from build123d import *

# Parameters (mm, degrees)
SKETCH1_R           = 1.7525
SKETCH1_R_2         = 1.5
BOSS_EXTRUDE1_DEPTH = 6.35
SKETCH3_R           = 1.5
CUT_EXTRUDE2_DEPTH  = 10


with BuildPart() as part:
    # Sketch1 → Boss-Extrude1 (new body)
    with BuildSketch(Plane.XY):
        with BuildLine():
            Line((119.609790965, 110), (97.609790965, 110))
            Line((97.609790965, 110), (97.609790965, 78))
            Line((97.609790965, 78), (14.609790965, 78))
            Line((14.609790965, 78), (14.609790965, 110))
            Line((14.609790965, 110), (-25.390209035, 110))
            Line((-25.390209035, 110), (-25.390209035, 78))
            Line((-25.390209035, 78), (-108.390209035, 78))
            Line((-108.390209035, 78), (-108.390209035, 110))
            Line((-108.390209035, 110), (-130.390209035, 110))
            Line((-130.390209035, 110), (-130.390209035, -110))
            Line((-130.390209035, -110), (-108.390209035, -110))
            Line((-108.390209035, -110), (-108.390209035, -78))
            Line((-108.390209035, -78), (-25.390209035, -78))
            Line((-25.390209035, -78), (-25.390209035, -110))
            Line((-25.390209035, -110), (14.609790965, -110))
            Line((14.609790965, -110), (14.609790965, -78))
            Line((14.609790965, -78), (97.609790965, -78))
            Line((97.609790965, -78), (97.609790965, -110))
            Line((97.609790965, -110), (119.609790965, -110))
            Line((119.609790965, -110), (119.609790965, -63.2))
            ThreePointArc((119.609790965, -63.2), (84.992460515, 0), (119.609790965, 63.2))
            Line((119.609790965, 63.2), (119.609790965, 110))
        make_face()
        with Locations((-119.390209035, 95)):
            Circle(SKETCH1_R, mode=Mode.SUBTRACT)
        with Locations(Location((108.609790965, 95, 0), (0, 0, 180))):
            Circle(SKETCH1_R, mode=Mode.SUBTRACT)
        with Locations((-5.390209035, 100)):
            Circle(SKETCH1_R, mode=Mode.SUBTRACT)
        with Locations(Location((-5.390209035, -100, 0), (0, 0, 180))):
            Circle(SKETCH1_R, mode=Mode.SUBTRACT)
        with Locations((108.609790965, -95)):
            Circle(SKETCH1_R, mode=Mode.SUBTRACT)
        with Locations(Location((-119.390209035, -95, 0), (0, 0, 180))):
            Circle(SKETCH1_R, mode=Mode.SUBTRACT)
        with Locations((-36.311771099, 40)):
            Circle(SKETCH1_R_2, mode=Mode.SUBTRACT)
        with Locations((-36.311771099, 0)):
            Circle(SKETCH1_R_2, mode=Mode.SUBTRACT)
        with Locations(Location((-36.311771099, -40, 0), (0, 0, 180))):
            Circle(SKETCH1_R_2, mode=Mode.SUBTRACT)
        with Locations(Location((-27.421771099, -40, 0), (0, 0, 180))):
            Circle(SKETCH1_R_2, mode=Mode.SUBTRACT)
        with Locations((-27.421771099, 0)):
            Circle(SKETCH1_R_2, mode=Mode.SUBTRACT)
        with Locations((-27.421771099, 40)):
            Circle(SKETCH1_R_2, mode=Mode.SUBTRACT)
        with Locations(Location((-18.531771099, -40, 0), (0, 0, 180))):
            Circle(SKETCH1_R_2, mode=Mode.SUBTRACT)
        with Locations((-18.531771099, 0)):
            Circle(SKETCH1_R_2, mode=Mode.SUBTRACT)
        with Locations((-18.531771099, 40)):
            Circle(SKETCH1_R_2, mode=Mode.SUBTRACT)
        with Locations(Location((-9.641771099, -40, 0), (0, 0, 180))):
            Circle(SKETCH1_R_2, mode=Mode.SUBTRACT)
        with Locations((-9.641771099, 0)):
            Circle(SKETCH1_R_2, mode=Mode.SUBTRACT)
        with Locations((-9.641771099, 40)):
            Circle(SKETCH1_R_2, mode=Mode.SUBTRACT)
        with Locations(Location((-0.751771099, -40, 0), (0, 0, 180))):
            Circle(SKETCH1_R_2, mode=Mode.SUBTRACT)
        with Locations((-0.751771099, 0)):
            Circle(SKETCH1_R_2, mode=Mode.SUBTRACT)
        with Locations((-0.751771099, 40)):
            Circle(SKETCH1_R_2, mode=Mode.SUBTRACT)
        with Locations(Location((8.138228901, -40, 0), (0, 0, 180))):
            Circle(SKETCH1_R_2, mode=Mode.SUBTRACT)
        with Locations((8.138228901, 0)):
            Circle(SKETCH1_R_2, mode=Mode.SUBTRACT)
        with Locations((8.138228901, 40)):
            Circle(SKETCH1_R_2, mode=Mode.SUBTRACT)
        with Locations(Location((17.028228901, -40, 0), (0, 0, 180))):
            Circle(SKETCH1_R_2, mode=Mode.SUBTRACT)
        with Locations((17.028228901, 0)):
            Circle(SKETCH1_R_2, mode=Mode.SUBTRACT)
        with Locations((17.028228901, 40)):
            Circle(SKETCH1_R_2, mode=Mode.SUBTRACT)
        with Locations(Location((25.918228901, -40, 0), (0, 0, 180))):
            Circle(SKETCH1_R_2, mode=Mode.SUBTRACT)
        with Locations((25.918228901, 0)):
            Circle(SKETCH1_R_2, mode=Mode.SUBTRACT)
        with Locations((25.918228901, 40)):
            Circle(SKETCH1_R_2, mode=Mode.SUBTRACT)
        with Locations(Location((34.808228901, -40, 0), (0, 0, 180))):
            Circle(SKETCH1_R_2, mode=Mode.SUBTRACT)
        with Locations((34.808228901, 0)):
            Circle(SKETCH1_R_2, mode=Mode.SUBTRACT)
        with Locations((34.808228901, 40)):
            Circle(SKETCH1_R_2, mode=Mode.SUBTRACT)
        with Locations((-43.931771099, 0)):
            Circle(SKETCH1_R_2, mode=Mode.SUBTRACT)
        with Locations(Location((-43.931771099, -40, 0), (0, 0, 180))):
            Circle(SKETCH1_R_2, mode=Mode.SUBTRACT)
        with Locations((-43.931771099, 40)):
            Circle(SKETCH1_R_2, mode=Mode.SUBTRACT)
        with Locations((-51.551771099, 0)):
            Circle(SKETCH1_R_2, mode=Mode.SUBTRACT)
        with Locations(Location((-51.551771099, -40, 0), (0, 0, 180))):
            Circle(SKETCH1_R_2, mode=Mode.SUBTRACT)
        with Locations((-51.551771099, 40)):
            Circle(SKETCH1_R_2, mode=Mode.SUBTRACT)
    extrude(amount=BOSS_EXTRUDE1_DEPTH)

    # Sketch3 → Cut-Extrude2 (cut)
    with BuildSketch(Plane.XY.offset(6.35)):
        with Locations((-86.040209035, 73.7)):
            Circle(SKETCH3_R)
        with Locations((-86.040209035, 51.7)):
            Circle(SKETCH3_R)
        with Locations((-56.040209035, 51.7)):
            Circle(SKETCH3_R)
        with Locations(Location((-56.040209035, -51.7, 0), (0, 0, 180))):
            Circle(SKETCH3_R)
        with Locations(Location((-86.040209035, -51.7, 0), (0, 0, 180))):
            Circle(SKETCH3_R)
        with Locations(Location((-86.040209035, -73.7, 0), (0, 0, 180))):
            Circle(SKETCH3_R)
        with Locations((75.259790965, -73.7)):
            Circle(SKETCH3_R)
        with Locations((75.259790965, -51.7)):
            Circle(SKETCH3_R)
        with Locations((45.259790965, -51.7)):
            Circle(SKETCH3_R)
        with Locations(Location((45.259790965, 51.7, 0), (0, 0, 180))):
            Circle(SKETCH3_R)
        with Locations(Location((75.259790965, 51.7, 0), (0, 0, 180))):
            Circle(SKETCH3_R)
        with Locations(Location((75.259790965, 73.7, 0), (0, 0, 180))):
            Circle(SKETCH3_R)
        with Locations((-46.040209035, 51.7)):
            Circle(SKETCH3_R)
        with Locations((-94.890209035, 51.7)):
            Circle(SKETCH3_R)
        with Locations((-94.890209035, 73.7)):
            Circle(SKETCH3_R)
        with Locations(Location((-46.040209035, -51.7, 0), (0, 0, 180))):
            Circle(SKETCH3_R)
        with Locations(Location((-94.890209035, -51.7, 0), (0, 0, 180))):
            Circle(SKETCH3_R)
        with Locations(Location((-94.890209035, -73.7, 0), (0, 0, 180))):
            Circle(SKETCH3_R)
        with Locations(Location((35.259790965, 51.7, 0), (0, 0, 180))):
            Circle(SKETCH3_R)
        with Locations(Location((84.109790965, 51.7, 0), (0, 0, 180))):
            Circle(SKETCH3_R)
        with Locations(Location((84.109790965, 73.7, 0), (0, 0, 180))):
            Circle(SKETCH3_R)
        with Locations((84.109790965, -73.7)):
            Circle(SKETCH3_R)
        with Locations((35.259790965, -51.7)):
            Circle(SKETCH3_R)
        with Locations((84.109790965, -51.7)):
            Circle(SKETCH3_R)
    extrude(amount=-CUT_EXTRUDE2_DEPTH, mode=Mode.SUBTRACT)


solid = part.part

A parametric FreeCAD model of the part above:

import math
import FreeCAD as App
import Part
import Sketcher
from FreeCAD import Vector

doc = App.newDocument("Part")
body = doc.addObject("PartDesign::Body", "Body")

# Sketch on XY plane
sketch1 = body.newObject("Sketcher::SketchObject", "Sketch")
sketch1.AttachmentSupport = (doc.getObject("XY_Plane"), [""])
sketch1.MapMode = "FlatFace"
sketch1.addGeometry([
    Part.LineSegment(Vector(119.6, 110, 0), Vector(97.6, 110, 0)),  # 0
    Part.LineSegment(Vector(97.6, 110, 0), Vector(97.6, 78, 0)),  # 1
    Part.LineSegment(Vector(97.6, 78, 0), Vector(14.6, 78, 0)),  # 2
    Part.LineSegment(Vector(14.6, 78, 0), Vector(14.6, 110, 0)),  # 3
    Part.LineSegment(Vector(14.6, 110, 0), Vector(-25.4, 110, 0)),  # 4
    Part.LineSegment(Vector(-25.4, 110, 0), Vector(-25.4, 78, 0)),  # 5
    Part.LineSegment(Vector(-25.4, 78, 0), Vector(-108.4, 78, 0)),  # 6
    Part.LineSegment(Vector(-108.4, 78, 0), Vector(-108.4, 110, 0)),  # 7
    Part.LineSegment(Vector(-108.4, 110, 0), Vector(-130.4, 110, 0)),  # 8
    Part.LineSegment(Vector(-130.4, 110, 0), Vector(-130.4, -110, 0)),  # 9
    Part.LineSegment(Vector(-130.4, -110, 0), Vector(-108.4, -110, 0)),  # 10
    Part.LineSegment(Vector(-108.4, -110, 0), Vector(-108.4, -78, 0)),  # 11
    Part.LineSegment(Vector(-108.4, -78, 0), Vector(-25.4, -78, 0)),  # 12
    Part.LineSegment(Vector(-25.4, -78, 0), Vector(-25.4, -110, 0)),  # 13
    Part.LineSegment(Vector(-25.4, -110, 0), Vector(14.6, -110, 0)),  # 14
    Part.LineSegment(Vector(14.6, -110, 0), Vector(14.6, -78, 0)),  # 15
    Part.LineSegment(Vector(14.6, -78, 0), Vector(97.6, -78, 0)),  # 16
    Part.LineSegment(Vector(97.6, -78, 0), Vector(97.6, -110, 0)),  # 17
    Part.LineSegment(Vector(97.6, -110, 0), Vector(119.6, -110, 0)),  # 18
    Part.LineSegment(Vector(119.6, -110, 0), Vector(119.6, -63.2, 0)),  # 19
    Part.ArcOfCircle(Part.Circle(Vector(160, 0, 0), Vector(0, 0, 1), 75), math.radians(123), math.radians(237)),  # 20
    Part.LineSegment(Vector(119.6, 63.2, 0), Vector(119.6, 110, 0)),  # 21
    Part.Circle(Vector(-119.4, -95, 0), Vector(0, 0, 1), 1.8),  # 22
    Part.Circle(Vector(-51.6, -40, 0), Vector(0, 0, 1), 1.5),  # 23
    Part.Circle(Vector(-43.9, -40, 0), Vector(0, 0, 1), 1.5),  # 24
    Part.Circle(Vector(-36.3, -40, 0), Vector(0, 0, 1), 1.5),  # 25
    Part.Circle(Vector(-27.4, -40, 0), Vector(0, 0, 1), 1.5),  # 26
    Part.Circle(Vector(-18.5, -40, 0), Vector(0, 0, 1), 1.5),  # 27
    Part.Circle(Vector(-9.6, -40, 0), Vector(0, 0, 1), 1.5),  # 28
    Part.Circle(Vector(-5.4, -100, 0), Vector(0, 0, 1), 1.8),  # 29
    Part.Circle(Vector(108.6, -95, 0), Vector(0, 0, 1), 1.8),  # 30
    Part.Circle(Vector(-0.8, -40, 0), Vector(0, 0, 1), 1.5),  # 31
    Part.Circle(Vector(8.1, -40, 0), Vector(0, 0, 1), 1.5),  # 32
    Part.Circle(Vector(17, -40, 0), Vector(0, 0, 1), 1.5),  # 33
    Part.Circle(Vector(25.9, -40, 0), Vector(0, 0, 1), 1.5),  # 34
    Part.Circle(Vector(34.8, -40, 0), Vector(0, 0, 1), 1.5),  # 35
    Part.Circle(Vector(-51.6, 0, 0), Vector(0, 0, 1), 1.5),  # 36
    Part.Circle(Vector(-43.9, 0, 0), Vector(0, 0, 1), 1.5),  # 37
    Part.Circle(Vector(-36.3, 0, 0), Vector(0, 0, 1), 1.5),  # 38
    Part.Circle(Vector(-27.4, 0, 0), Vector(0, 0, 1), 1.5),  # 39
    Part.Circle(Vector(-18.5, 0, 0), Vector(0, 0, 1), 1.5),  # 40
    Part.Circle(Vector(-9.6, 0, 0), Vector(0, 0, 1), 1.5),  # 41
    Part.Circle(Vector(-51.6, 40, 0), Vector(0, 0, 1), 1.5),  # 42
    Part.Circle(Vector(-43.9, 40, 0), Vector(0, 0, 1), 1.5),  # 43
    Part.Circle(Vector(-36.3, 40, 0), Vector(0, 0, 1), 1.5),  # 44
    Part.Circle(Vector(-27.4, 40, 0), Vector(0, 0, 1), 1.5),  # 45
    Part.Circle(Vector(-18.5, 40, 0), Vector(0, 0, 1), 1.5),  # 46
    Part.Circle(Vector(-9.6, 40, 0), Vector(0, 0, 1), 1.5),  # 47
    Part.Circle(Vector(-119.4, 95, 0), Vector(0, 0, 1), 1.8),  # 48
    Part.Circle(Vector(-0.8, 0, 0), Vector(0, 0, 1), 1.5),  # 49
    Part.Circle(Vector(8.1, 0, 0), Vector(0, 0, 1), 1.5),  # 50
    Part.Circle(Vector(17, 0, 0), Vector(0, 0, 1), 1.5),  # 51
    Part.Circle(Vector(25.9, 0, 0), Vector(0, 0, 1), 1.5),  # 52
    Part.Circle(Vector(34.8, 0, 0), Vector(0, 0, 1), 1.5),  # 53
    Part.Circle(Vector(-0.8, 40, 0), Vector(0, 0, 1), 1.5),  # 54
    Part.Circle(Vector(8.1, 40, 0), Vector(0, 0, 1), 1.5),  # 55
    Part.Circle(Vector(17, 40, 0), Vector(0, 0, 1), 1.5),  # 56
    Part.Circle(Vector(25.9, 40, 0), Vector(0, 0, 1), 1.5),  # 57
    Part.Circle(Vector(34.8, 40, 0), Vector(0, 0, 1), 1.5),  # 58
    Part.Circle(Vector(-5.4, 100, 0), Vector(0, 0, 1), 1.8),  # 59
    Part.Circle(Vector(108.6, 95, 0), Vector(0, 0, 1), 1.8),  # 60
], False)
sketch1.addConstraint([
    Sketcher.Constraint("Coincident", 0, 2, 1, 1),
    Sketcher.Constraint("Coincident", 1, 2, 2, 1),
    Sketcher.Constraint("Coincident", 2, 2, 3, 1),
    Sketcher.Constraint("Coincident", 3, 2, 4, 1),
    Sketcher.Constraint("Coincident", 4, 2, 5, 1),
    Sketcher.Constraint("Coincident", 5, 2, 6, 1),
    Sketcher.Constraint("Coincident", 6, 2, 7, 1),
    Sketcher.Constraint("Coincident", 7, 2, 8, 1),
    Sketcher.Constraint("Coincident", 8, 2, 9, 1),
    Sketcher.Constraint("Coincident", 9, 2, 10, 1),
    Sketcher.Constraint("Coincident", 10, 2, 11, 1),
    Sketcher.Constraint("Coincident", 11, 2, 12, 1),
    Sketcher.Constraint("Coincident", 12, 2, 13, 1),
    Sketcher.Constraint("Coincident", 13, 2, 14, 1),
    Sketcher.Constraint("Coincident", 14, 2, 15, 1),
    Sketcher.Constraint("Coincident", 15, 2, 16, 1),
    Sketcher.Constraint("Coincident", 16, 2, 17, 1),
    Sketcher.Constraint("Coincident", 17, 2, 18, 1),
    Sketcher.Constraint("Coincident", 18, 2, 19, 1),
    Sketcher.Constraint("Coincident", 19, 2, 20, 2),
    Sketcher.Constraint("Coincident", 20, 1, 21, 1),
    Sketcher.Constraint("Coincident", 21, 2, 0, 1),
    Sketcher.Constraint("Horizontal", 0),
    Sketcher.Constraint("Vertical", 1),
    Sketcher.Constraint("Horizontal", 2),
    Sketcher.Constraint("Vertical", 3),
    Sketcher.Constraint("Horizontal", 4),
    Sketcher.Constraint("Vertical", 5),
    Sketcher.Constraint("Horizontal", 6),
    Sketcher.Constraint("Vertical", 7),
    Sketcher.Constraint("Horizontal", 8),
    Sketcher.Constraint("Vertical", 9),
    Sketcher.Constraint("Horizontal", 10),
    Sketcher.Constraint("Vertical", 11),
    Sketcher.Constraint("Horizontal", 12),
    Sketcher.Constraint("Vertical", 13),
    Sketcher.Constraint("Horizontal", 14),
    Sketcher.Constraint("Vertical", 15),
    Sketcher.Constraint("Horizontal", 16),
    Sketcher.Constraint("Vertical", 17),
    Sketcher.Constraint("Horizontal", 18),
    Sketcher.Constraint("Vertical", 19),
    Sketcher.Constraint("Vertical", 21),
    Sketcher.Constraint("Equal", 23, 24),
    Sketcher.Constraint("Equal", 24, 25),
    Sketcher.Constraint("Equal", 25, 26),
    Sketcher.Constraint("Equal", 26, 27),
    Sketcher.Constraint("Equal", 27, 28),
    Sketcher.Constraint("Equal", 22, 29),
    Sketcher.Constraint("Equal", 29, 30),
    Sketcher.Constraint("Equal", 28, 31),
    Sketcher.Constraint("Equal", 31, 32),
    Sketcher.Constraint("Equal", 32, 33),
    Sketcher.Constraint("Equal", 33, 34),
    Sketcher.Constraint("Equal", 34, 35),
    Sketcher.Constraint("Equal", 35, 36),
    Sketcher.Constraint("Equal", 36, 37),
    Sketcher.Constraint("Equal", 37, 38),
    Sketcher.Constraint("Equal", 38, 39),
    Sketcher.Constraint("Equal", 39, 40),
    Sketcher.Constraint("Equal", 40, 41),
    Sketcher.Constraint("Equal", 41, 42),
    Sketcher.Constraint("Equal", 42, 43),
    Sketcher.Constraint("Equal", 43, 44),
    Sketcher.Constraint("Equal", 44, 45),
    Sketcher.Constraint("Equal", 45, 46),
    Sketcher.Constraint("Equal", 46, 47),
    Sketcher.Constraint("Equal", 30, 48),
    Sketcher.Constraint("Equal", 47, 49),
    Sketcher.Constraint("Equal", 49, 50),
    Sketcher.Constraint("Equal", 50, 51),
    Sketcher.Constraint("Equal", 51, 52),
    Sketcher.Constraint("Equal", 52, 53),
    Sketcher.Constraint("Equal", 53, 54),
    Sketcher.Constraint("Equal", 54, 55),
    Sketcher.Constraint("Equal", 55, 56),
    Sketcher.Constraint("Equal", 56, 57),
    Sketcher.Constraint("Equal", 57, 58),
    Sketcher.Constraint("Equal", 48, 59),
    Sketcher.Constraint("Equal", 59, 60),
    Sketcher.Constraint("Symmetric", 23, 3, 42, 3, -1),
    Sketcher.Constraint("Symmetric", 24, 3, 43, 3, -1),
    Sketcher.Constraint("Symmetric", 25, 3, 44, 3, -1),
    Sketcher.Constraint("Symmetric", 26, 3, 45, 3, -1),
    Sketcher.Constraint("Symmetric", 27, 3, 46, 3, -1),
    Sketcher.Constraint("Symmetric", 28, 3, 47, 3, -1),
    Sketcher.Constraint("Symmetric", 22, 3, 48, 3, -1),
    Sketcher.Constraint("Symmetric", 31, 3, 54, 3, -1),
    Sketcher.Constraint("Symmetric", 32, 3, 55, 3, -1),
    Sketcher.Constraint("Symmetric", 33, 3, 56, 3, -1),
    Sketcher.Constraint("Symmetric", 34, 3, 57, 3, -1),
    Sketcher.Constraint("Symmetric", 35, 3, 58, 3, -1),
    Sketcher.Constraint("Symmetric", 29, 3, 59, 3, -1),
    Sketcher.Constraint("Symmetric", 30, 3, 60, 3, -1),
    Sketcher.Constraint("Symmetric", 7, 2, 10, 2, -1),
    Sketcher.Constraint("Symmetric", 5, 2, 12, 2, -1),
    Sketcher.Constraint("Symmetric", 3, 2, 14, 2, -1),
    Sketcher.Constraint("Symmetric", 1, 2, 16, 2, -1),
    Sketcher.Constraint("Symmetric", 19, 2, 20, 1, -1),
    Sketcher.Constraint("PointOnObject", 36, 3, -1),
    Sketcher.Constraint("PointOnObject", 37, 3, -1),
    Sketcher.Constraint("PointOnObject", 38, 3, -1),
    Sketcher.Constraint("PointOnObject", 39, 3, -1),
    Sketcher.Constraint("PointOnObject", 40, 3, -1),
    Sketcher.Constraint("PointOnObject", 41, 3, -1),
    Sketcher.Constraint("PointOnObject", 49, 3, -1),
    Sketcher.Constraint("PointOnObject", 50, 3, -1),
    Sketcher.Constraint("PointOnObject", 51, 3, -1),
    Sketcher.Constraint("PointOnObject", 52, 3, -1),
    Sketcher.Constraint("PointOnObject", 53, 3, -1),
    Sketcher.Constraint("Horizontal", 23, 3, 24, 3),
    Sketcher.Constraint("Horizontal", 24, 3, 25, 3),
    Sketcher.Constraint("Horizontal", 25, 3, 26, 3),
    Sketcher.Constraint("Horizontal", 26, 3, 27, 3),
    Sketcher.Constraint("Horizontal", 27, 3, 28, 3),
    Sketcher.Constraint("Horizontal", 22, 3, 30, 3),
    Sketcher.Constraint("Horizontal", 28, 3, 31, 3),
    Sketcher.Constraint("Horizontal", 31, 3, 32, 3),
    Sketcher.Constraint("Horizontal", 32, 3, 33, 3),
    Sketcher.Constraint("Horizontal", 33, 3, 34, 3),
    Sketcher.Constraint("Horizontal", 34, 3, 35, 3),
    Sketcher.Constraint("Horizontal", 0, 2, 3, 2),
    Sketcher.Constraint("Horizontal", 2, 2, 5, 2),
    Sketcher.Constraint("Horizontal", 4, 2, 7, 2),
    Sketcher.Constraint("Horizontal", 14, 2, 17, 2),
    Sketcher.Constraint("Vertical", 23, 3, 36, 3),
    Sketcher.Constraint("Vertical", 24, 3, 37, 3),
    Sketcher.Constraint("Vertical", 25, 3, 38, 3),
    Sketcher.Constraint("Vertical", 26, 3, 39, 3),
    Sketcher.Constraint("Vertical", 27, 3, 40, 3),
    Sketcher.Constraint("Vertical", 28, 3, 41, 3),
    Sketcher.Constraint("Vertical", 31, 3, 49, 3),
    Sketcher.Constraint("Vertical", 32, 3, 50, 3),
    Sketcher.Constraint("Vertical", 33, 3, 51, 3),
    Sketcher.Constraint("Vertical", 34, 3, 52, 3),
    Sketcher.Constraint("Vertical", 35, 3, 53, 3),
    Sketcher.Constraint("Equal", 2, 6),
    Sketcher.Constraint("Equal", 0, 8),
    Sketcher.Constraint("Diameter", 23, 3.0),
    Sketcher.Constraint("Radius", 20, 75.0),
    Sketcher.Constraint("DistanceX", 0, 2, 0, 1, 22.0),
    Sketcher.Constraint("DistanceX", 2, 2, 2, 1, 83.0),
    Sketcher.Constraint("DistanceX", 4, 2, 4, 1, 40.0),
    Sketcher.Constraint("DistanceY", 1, 2, 1, 1, 32.0),
    Sketcher.Constraint("DistanceY", 9, 2, 9, 1, 220.0),
    Sketcher.Constraint("Diameter", 22, 3.505),
    Sketcher.Constraint("DistanceY", 19, 1, 19, 2, 46.8),
    Sketcher.Constraint("DistanceY", 22, 3, -1, 1, 95.0),
    Sketcher.Constraint("DistanceY", 23, 3, -1, 1, 40.0),
    Sketcher.Constraint("DistanceY", 29, 3, -1, 1, 100.0),
    Sketcher.Constraint("DistanceX", -1, 1, 20, 3, 159.992461),
    Sketcher.Constraint("DistanceX", 22, 3, -1, 1, 119.390209),
    Sketcher.Constraint("DistanceX", 23, 3, -1, 1, 51.551771),
    Sketcher.Constraint("DistanceX", 24, 3, -1, 1, 43.931771),
    Sketcher.Constraint("DistanceX", 25, 3, -1, 1, 36.311771),
    Sketcher.Constraint("DistanceX", 26, 3, -1, 1, 27.421771),
    Sketcher.Constraint("DistanceX", 27, 3, -1, 1, 18.531771),
    Sketcher.Constraint("DistanceX", 28, 3, -1, 1, 9.641771),
    Sketcher.Constraint("DistanceX", 29, 3, -1, 1, 5.390209),
    Sketcher.Constraint("DistanceX", -1, 1, 30, 3, 108.609791),
    Sketcher.Constraint("DistanceX", 31, 3, -1, 1, 0.751771),
    Sketcher.Constraint("DistanceX", -1, 1, 32, 3, 8.138229),
    Sketcher.Constraint("DistanceX", -1, 1, 33, 3, 17.028229),
    Sketcher.Constraint("DistanceX", -1, 1, 34, 3, 25.918229),
    Sketcher.Constraint("DistanceX", -1, 1, 35, 3, 34.808229),
])
pad1 = body.newObject("PartDesign::Pad", "Pad")
pad1.Profile = sketch1
pad1.Length = 6.35

# Sketch on XY plane
sketch2 = body.newObject("Sketcher::SketchObject", "Sketch001")
sketch2.AttachmentSupport = (doc.getObject("XY_Plane"), [""])
sketch2.MapMode = "FlatFace"
sketch2.AttachmentOffset = App.Placement(Vector(0, 0, 6.35), App.Rotation())
sketch2.addGeometry([
    Part.Circle(Vector(-86, 73.7, 0), Vector(0, 0, 1), 1.5),  # 0
    Part.Circle(Vector(-86, 51.7, 0), Vector(0, 0, 1), 1.5),  # 1
    Part.Circle(Vector(-56, 51.7, 0), Vector(0, 0, 1), 1.5),  # 2
    Part.Circle(Vector(-56, -51.7, 0), Vector(0, 0, 1), 1.5),  # 3
    Part.Circle(Vector(-86, -51.7, 0), Vector(0, 0, 1), 1.5),  # 4
    Part.Circle(Vector(-86, -73.7, 0), Vector(0, 0, 1), 1.5),  # 5
    Part.Circle(Vector(75.3, -73.7, 0), Vector(0, 0, 1), 1.5),  # 6
    Part.Circle(Vector(75.3, -51.7, 0), Vector(0, 0, 1), 1.5),  # 7
    Part.Circle(Vector(45.3, -51.7, 0), Vector(0, 0, 1), 1.5),  # 8
    Part.Circle(Vector(45.3, 51.7, 0), Vector(0, 0, 1), 1.5),  # 9
    Part.Circle(Vector(75.3, 51.7, 0), Vector(0, 0, 1), 1.5),  # 10
    Part.Circle(Vector(75.3, 73.7, 0), Vector(0, 0, 1), 1.5),  # 11
    Part.Circle(Vector(-46, 51.7, 0), Vector(0, 0, 1), 1.5),  # 12
    Part.Circle(Vector(-94.9, 51.7, 0), Vector(0, 0, 1), 1.5),  # 13
    Part.Circle(Vector(-94.9, 73.7, 0), Vector(0, 0, 1), 1.5),  # 14
    Part.Circle(Vector(-46, -51.7, 0), Vector(0, 0, 1), 1.5),  # 15
    Part.Circle(Vector(-94.9, -51.7, 0), Vector(0, 0, 1), 1.5),  # 16
    Part.Circle(Vector(-94.9, -73.7, 0), Vector(0, 0, 1), 1.5),  # 17
    Part.Circle(Vector(35.3, 51.7, 0), Vector(0, 0, 1), 1.5),  # 18
    Part.Circle(Vector(84.1, 51.7, 0), Vector(0, 0, 1), 1.5),  # 19
    Part.Circle(Vector(84.1, 73.7, 0), Vector(0, 0, 1), 1.5),  # 20
    Part.Circle(Vector(84.1, -73.7, 0), Vector(0, 0, 1), 1.5),  # 21
    Part.Circle(Vector(35.3, -51.7, 0), Vector(0, 0, 1), 1.5),  # 22
    Part.Circle(Vector(84.1, -51.7, 0), Vector(0, 0, 1), 1.5),  # 23
], False)
sketch2.addConstraint([
    Sketcher.Constraint("Equal", 0, 1),
    Sketcher.Constraint("Equal", 1, 2),
    Sketcher.Constraint("Equal", 2, 3),
    Sketcher.Constraint("Equal", 3, 4),
    Sketcher.Constraint("Equal", 4, 5),
    Sketcher.Constraint("Equal", 5, 6),
    Sketcher.Constraint("Equal", 6, 7),
    Sketcher.Constraint("Equal", 7, 8),
    Sketcher.Constraint("Equal", 8, 9),
    Sketcher.Constraint("Equal", 9, 10),
    Sketcher.Constraint("Equal", 10, 11),
    Sketcher.Constraint("Equal", 11, 12),
    Sketcher.Constraint("Equal", 12, 13),
    Sketcher.Constraint("Equal", 13, 14),
    Sketcher.Constraint("Equal", 14, 15),
    Sketcher.Constraint("Equal", 15, 16),
    Sketcher.Constraint("Equal", 16, 17),
    Sketcher.Constraint("Equal", 17, 18),
    Sketcher.Constraint("Equal", 18, 19),
    Sketcher.Constraint("Equal", 19, 20),
    Sketcher.Constraint("Equal", 20, 21),
    Sketcher.Constraint("Equal", 21, 22),
    Sketcher.Constraint("Equal", 22, 23),
    Sketcher.Constraint("Symmetric", 2, 3, 3, 3, -1),
    Sketcher.Constraint("Symmetric", 1, 3, 4, 3, -1),
    Sketcher.Constraint("Symmetric", 0, 3, 5, 3, -1),
    Sketcher.Constraint("Symmetric", 8, 3, 9, 3, -1),
    Sketcher.Constraint("Symmetric", 7, 3, 10, 3, -1),
    Sketcher.Constraint("Symmetric", 6, 3, 11, 3, -1),
    Sketcher.Constraint("Symmetric", 12, 3, 15, 3, -1),
    Sketcher.Constraint("Symmetric", 13, 3, 16, 3, -1),
    Sketcher.Constraint("Symmetric", 14, 3, 17, 3, -1),
    Sketcher.Constraint("Symmetric", 20, 3, 21, 3, -1),
    Sketcher.Constraint("Symmetric", 18, 3, 22, 3, -1),
    Sketcher.Constraint("Symmetric", 19, 3, 23, 3, -1),
    Sketcher.Constraint("Horizontal", 1, 3, 2, 3),
    Sketcher.Constraint("Horizontal", 5, 3, 6, 3),
    Sketcher.Constraint("Horizontal", 4, 3, 7, 3),
    Sketcher.Constraint("Horizontal", 7, 3, 8, 3),
    Sketcher.Constraint("Horizontal", 10, 3, 12, 3),
    Sketcher.Constraint("Horizontal", 12, 3, 13, 3),
    Sketcher.Constraint("Horizontal", 11, 3, 14, 3),
    Sketcher.Constraint("Horizontal", 13, 3, 18, 3),
    Sketcher.Constraint("Horizontal", 18, 3, 19, 3),
    Sketcher.Constraint("Horizontal", 14, 3, 20, 3),
    Sketcher.Constraint("Vertical", 0, 3, 1, 3),
    Sketcher.Constraint("Vertical", 6, 3, 7, 3),
    Sketcher.Constraint("Vertical", 13, 3, 14, 3),
    Sketcher.Constraint("Vertical", 19, 3, 20, 3),
    Sketcher.Constraint("Diameter", 0, 3.0),
    Sketcher.Constraint("DistanceY", 1, 3, 0, 3, 22.0),
    Sketcher.Constraint("DistanceX", 1, 3, 2, 3, 30.0),
    Sketcher.Constraint("DistanceX", 8, 3, 7, 3, 30.0),
    Sketcher.Constraint("DistanceX", 2, 3, 12, 3, 10.0),
    Sketcher.Constraint("DistanceX", 18, 3, 9, 3, 10.0),
    Sketcher.Constraint("DistanceY", -1, 1, 0, 3, 73.7),
    Sketcher.Constraint("DistanceX", 3, 3, 6, 3, 131.3),
    Sketcher.Constraint("DistanceX", 13, 3, 1, 3, 8.85),
    Sketcher.Constraint("DistanceX", 10, 3, 19, 3, 8.85),
    Sketcher.Constraint("DistanceX", 0, 3, -1, 1, 86.040209),
])
pocket1 = body.newObject("PartDesign::Pocket", "Pocket")
pocket1.Profile = sketch2
pocket1.Length = 10

doc.recompute()
